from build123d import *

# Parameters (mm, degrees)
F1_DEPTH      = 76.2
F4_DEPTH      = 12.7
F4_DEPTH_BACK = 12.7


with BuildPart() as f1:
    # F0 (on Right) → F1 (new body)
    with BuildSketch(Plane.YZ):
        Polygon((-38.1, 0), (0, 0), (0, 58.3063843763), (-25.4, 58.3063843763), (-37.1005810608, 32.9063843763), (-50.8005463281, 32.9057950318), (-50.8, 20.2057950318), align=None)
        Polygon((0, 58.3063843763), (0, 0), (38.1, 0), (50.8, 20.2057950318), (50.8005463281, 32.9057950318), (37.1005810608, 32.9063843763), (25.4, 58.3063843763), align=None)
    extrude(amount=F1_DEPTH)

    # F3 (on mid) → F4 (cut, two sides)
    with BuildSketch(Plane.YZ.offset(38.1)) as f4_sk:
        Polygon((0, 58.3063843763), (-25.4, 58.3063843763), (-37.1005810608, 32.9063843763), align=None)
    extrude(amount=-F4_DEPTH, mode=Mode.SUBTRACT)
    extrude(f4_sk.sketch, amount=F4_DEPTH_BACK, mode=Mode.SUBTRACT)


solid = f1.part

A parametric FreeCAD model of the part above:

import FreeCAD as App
import Part
import Sketcher
from FreeCAD import Vector
Q = App.Units.Quantity


def add_polygon(sketch, points):
    """Adds a closed chain of lines whose ends are joined by coincident constraints."""
    first, n = sketch.GeometryCount, len(points)
    for a, b in zip(points, points[1:] + points[:1]):
        sketch.addGeometry(Part.LineSegment(App.Vector(*a, 0), App.Vector(*b, 0)), False)
    for i in range(n):
        sketch.addConstraint(Sketcher.Constraint("Coincident", first + i, 2, first + (i + 1) % n, 1))

doc = App.newDocument("Part")
body = doc.addObject("PartDesign::Body", "Body")

# Sketch on YZ plane
sketch1 = doc.addObject("Sketcher::SketchObject", "Sketch")
body.addObject(sketch1)
sketch1.AttachmentSupport = (doc.YZ_Plane, [""])
sketch1.MapMode = "FlatFace"
add_polygon(sketch1, [(-38, 0), (38, 0), (51, 20), (51, 33), (37, 33), (25, 58), (-25, 58), (-37, 33), (-51, 33), (-51, 20)])  # lines 0-9
sketch1.addConstraint([
    Sketcher.Constraint("Horizontal", 0),
    Sketcher.Constraint("Horizontal", 5),
    Sketcher.Constraint("Symmetric", 0, 2, 9, 2, -1, 1),
    Sketcher.Constraint("Symmetric", 3, 2, 6, 2, -2),
    Sketcher.Constraint("Symmetric", 2, 2, 7, 2, -2),
    Sketcher.Constraint("Symmetric", 1, 2, 8, 2, -2),
    Sketcher.Constraint("Perpendicular", 2, 3),
    Sketcher.Constraint("Equal", 4, 6),
    Sketcher.Constraint("DistanceX", 0, 1, 0, 2, Q("3 in")),
    Sketcher.Constraint("DistanceX", 5, 2, 5, 1, Q("2 in")),
    Sketcher.Constraint("DistanceX", -1, 1, 1, 2, Q("2 in")),
    Sketcher.Constraint("DistanceY", 3, 2, 4, 2, Q("1 in")),
    Sketcher.Constraint("Distance", 2, Q("0.5 in")),
    Sketcher.Constraint("Distance", 4, Q("1.101 in")),
    Sketcher.Constraint("DistanceY", 2, 2, 3, 2, 0.000589),
    Sketcher.Constraint("Distance", 1, 23.865543),
])
pad1 = doc.addObject("PartDesign::Pad", "Pad")
body.addObject(pad1)
pad1.Profile = sketch1
pad1.Length = Q("3 in")

# Sketch on YZ plane
sketch2 = doc.addObject("Sketcher::SketchObject", "Sketch001")
body.addObject(sketch2)
sketch2.AttachmentSupport = (doc.YZ_Plane, [""])
sketch2.MapMode = "FlatFace"
sketch2.AttachmentOffset = App.Placement(Vector(0, 0, 1.5 * 25.4), App.Rotation())
add_polygon(sketch2, [(0, 58), (-25, 58), (-37, 33)])  # lines 0-2
sketch2.addConstraint([
    Sketcher.Constraint("Horizontal", 0),
    Sketcher.Constraint("PointOnObject", 2, 2, -2),
    Sketcher.Constraint("DistanceX", 0, 2, 0, 1, Q("1 in")),
    Sketcher.Constraint("DistanceY", 1, 2, 0, 2, Q("1 in")),
    Sketcher.Constraint("Distance", 1, Q("1.101 in")),
    Sketcher.Constraint("DistanceY", -1, 1, 0, 2, 58.306384),
])
pocket1 = doc.addObject("PartDesign::Pocket", "Pocket")
body.addObject(pocket1)
pocket1.Profile = sketch2
pocket1.Type = "TwoLengths"
pocket1.Length = Q("0.5 in")
pocket1.Length2 = Q("0.5 in")

doc.recompute()
